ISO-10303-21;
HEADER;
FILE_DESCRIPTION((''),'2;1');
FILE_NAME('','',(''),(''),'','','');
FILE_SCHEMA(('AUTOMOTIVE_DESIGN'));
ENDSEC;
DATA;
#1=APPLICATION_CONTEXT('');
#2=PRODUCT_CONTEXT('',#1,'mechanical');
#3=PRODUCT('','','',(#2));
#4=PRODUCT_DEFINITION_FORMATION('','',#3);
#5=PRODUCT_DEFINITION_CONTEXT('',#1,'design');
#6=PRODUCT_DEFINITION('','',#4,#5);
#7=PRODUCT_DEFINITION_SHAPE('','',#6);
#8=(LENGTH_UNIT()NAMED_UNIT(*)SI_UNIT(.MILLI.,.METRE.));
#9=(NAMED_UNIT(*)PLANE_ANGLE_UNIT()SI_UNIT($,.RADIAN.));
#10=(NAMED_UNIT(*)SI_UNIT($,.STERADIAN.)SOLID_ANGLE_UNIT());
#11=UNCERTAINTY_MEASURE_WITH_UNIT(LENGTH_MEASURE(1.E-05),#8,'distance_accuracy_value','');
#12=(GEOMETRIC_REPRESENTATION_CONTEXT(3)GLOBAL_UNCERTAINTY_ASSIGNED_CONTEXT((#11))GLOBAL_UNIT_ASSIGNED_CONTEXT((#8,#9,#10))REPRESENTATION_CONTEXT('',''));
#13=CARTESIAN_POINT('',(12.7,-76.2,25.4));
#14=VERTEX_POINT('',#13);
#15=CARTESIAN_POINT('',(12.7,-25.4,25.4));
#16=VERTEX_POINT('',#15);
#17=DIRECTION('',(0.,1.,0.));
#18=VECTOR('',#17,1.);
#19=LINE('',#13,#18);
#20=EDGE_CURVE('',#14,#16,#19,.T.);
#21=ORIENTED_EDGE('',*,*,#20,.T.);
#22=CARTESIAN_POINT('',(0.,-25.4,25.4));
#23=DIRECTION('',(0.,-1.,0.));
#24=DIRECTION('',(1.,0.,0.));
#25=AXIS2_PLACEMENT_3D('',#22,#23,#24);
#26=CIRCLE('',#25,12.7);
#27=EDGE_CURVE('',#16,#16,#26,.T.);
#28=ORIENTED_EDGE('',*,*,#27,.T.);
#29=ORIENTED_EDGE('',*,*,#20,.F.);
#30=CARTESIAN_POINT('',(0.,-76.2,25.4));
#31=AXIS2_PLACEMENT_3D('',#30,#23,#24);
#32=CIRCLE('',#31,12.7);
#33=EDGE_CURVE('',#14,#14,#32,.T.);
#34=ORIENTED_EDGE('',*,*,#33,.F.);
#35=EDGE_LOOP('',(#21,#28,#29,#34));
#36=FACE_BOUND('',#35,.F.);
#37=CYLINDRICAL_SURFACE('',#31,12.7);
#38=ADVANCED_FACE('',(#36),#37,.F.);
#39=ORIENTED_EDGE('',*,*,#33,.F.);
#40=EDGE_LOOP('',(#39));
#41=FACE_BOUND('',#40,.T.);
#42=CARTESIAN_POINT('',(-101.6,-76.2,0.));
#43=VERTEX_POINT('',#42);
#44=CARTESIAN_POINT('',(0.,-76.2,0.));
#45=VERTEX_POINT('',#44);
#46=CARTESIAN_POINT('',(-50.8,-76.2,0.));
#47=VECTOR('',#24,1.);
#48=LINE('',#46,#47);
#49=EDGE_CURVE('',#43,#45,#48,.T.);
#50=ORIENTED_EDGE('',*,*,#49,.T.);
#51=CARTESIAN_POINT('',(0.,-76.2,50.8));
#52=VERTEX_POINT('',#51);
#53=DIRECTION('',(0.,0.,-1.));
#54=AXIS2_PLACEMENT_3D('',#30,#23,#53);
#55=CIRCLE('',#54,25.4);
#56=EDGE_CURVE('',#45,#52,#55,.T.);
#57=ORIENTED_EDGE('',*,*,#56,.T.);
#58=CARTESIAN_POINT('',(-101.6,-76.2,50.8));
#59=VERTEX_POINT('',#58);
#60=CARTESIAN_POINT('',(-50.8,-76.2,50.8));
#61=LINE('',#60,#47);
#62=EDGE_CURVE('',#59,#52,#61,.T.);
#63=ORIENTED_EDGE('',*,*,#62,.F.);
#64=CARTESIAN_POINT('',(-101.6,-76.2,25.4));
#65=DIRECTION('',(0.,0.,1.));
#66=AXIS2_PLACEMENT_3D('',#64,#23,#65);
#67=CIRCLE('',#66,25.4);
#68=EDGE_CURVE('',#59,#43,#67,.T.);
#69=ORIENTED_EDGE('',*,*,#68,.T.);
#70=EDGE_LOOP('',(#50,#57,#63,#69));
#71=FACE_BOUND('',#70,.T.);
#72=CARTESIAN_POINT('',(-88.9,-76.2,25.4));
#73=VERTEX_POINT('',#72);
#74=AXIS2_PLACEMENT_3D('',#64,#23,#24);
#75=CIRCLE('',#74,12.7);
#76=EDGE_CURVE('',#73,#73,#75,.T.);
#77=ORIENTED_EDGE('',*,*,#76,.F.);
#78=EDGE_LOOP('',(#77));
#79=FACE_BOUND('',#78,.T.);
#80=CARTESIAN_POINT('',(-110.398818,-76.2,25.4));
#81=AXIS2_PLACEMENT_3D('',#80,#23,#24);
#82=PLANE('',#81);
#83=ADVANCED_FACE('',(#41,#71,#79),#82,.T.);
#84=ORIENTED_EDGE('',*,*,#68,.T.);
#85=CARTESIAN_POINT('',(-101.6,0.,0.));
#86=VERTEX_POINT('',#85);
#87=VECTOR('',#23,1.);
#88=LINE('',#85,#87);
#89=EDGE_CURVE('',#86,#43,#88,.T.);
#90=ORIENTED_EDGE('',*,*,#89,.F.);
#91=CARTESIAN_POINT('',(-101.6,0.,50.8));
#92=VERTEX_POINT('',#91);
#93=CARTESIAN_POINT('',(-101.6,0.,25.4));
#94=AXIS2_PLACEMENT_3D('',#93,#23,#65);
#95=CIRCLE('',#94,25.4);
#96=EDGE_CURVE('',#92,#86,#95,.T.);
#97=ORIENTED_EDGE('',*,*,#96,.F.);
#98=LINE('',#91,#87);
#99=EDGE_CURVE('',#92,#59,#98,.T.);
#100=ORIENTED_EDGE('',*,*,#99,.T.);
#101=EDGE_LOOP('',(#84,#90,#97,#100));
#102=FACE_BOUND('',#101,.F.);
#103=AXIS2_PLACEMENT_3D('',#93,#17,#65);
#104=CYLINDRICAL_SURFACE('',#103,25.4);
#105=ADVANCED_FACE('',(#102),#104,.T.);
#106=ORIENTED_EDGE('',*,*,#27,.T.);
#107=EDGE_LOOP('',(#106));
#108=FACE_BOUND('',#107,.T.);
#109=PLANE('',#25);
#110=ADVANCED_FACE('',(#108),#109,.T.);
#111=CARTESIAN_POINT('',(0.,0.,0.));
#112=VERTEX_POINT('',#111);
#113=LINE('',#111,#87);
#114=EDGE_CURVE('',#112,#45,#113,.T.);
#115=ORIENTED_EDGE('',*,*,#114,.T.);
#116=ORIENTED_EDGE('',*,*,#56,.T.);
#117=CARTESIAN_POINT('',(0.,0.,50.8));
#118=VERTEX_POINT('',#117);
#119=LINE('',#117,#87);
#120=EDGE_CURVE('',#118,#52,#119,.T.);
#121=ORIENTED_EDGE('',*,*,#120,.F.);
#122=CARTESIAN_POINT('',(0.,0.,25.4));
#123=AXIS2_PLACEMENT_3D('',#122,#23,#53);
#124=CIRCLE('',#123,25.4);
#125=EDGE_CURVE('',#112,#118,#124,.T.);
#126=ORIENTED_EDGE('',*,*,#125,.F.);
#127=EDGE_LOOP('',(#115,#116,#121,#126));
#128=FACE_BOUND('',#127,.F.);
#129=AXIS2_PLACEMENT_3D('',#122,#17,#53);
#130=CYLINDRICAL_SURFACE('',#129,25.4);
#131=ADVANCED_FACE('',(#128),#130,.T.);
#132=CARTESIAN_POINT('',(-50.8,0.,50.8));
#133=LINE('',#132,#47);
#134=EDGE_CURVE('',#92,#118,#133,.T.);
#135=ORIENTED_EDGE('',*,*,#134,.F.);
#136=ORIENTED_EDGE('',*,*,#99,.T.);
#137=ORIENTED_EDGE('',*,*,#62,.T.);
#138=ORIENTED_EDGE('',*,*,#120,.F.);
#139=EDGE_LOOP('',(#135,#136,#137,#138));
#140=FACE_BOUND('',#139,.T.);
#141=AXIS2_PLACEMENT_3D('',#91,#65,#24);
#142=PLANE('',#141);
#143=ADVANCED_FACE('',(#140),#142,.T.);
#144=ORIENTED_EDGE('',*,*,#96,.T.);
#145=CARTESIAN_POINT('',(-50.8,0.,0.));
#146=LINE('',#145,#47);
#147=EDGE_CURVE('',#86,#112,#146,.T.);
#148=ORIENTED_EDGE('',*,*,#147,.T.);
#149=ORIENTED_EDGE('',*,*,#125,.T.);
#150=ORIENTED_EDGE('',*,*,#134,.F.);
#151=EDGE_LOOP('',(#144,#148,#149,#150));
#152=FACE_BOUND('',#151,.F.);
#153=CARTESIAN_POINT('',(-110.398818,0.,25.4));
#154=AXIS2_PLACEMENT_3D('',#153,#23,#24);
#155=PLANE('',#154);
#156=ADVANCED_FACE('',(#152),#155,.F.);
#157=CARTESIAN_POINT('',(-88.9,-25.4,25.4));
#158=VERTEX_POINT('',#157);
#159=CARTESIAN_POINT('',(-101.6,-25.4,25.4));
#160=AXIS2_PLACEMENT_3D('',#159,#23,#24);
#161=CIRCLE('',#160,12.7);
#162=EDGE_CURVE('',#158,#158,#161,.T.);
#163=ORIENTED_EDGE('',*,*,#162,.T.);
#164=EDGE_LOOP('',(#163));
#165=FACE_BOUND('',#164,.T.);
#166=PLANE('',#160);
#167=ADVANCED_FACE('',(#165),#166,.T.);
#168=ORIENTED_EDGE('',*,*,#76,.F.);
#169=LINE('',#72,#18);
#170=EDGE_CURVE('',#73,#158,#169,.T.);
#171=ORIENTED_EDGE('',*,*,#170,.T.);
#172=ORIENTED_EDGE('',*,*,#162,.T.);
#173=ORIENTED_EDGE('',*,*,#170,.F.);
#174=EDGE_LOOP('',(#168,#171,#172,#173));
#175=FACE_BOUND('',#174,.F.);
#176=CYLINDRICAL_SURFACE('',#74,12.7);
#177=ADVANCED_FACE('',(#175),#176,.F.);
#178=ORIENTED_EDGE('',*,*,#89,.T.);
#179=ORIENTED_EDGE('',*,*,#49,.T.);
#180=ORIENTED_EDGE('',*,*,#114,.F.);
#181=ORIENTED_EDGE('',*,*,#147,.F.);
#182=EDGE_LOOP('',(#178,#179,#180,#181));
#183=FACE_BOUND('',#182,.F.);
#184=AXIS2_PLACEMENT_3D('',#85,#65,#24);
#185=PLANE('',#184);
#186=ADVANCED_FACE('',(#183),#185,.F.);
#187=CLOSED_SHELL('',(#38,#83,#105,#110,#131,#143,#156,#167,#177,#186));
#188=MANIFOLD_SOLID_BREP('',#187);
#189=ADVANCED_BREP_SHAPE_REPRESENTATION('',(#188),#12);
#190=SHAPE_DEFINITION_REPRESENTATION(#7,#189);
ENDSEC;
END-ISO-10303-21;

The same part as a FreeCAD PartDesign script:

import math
import FreeCAD as App
import Part
import Sketcher
Q = App.Units.Quantity

doc = App.newDocument("Part")
body = doc.addObject("PartDesign::Body", "Body")

sketch1 = body.newObject("Sketcher::SketchObject", "Sketch")
sketch1.AttachmentSupport = (doc.getObject("XZ_Plane"), [""])
sketch1.MapMode = "FlatFace"
sketch1.addGeometry([
    Part.ArcOfCircle(Part.Circle(App.Vector(-102, 25, 0), App.Vector(0, 0, 1), 25), math.radians(90), math.radians(270)),
    Part.LineSegment(App.Vector(-102, 0, 0), App.Vector(0, 0, 0)),
    Part.ArcOfCircle(Part.Circle(App.Vector(0, 25, 0), App.Vector(0, 0, 1), 25), math.radians(-90), math.radians(90)),
    Part.LineSegment(App.Vector(0, 51, 0), App.Vector(-102, 51, 0)),
], False)
sketch1.addConstraint([
    Sketcher.Constraint("Tangent", 0, 2, 1, 1),
    Sketcher.Constraint("Tangent", 1, 2, 2, 1),
    Sketcher.Constraint("Tangent", 2, 2, 3, 1),
    Sketcher.Constraint("Tangent", 3, 2, 0, 1),
    Sketcher.Constraint("Horizontal", 1),
    Sketcher.Constraint("Horizontal", 3),
    Sketcher.Constraint("Coincident", 1, 2, -1, 1),
    Sketcher.Constraint("Radius", 0, Q("1 in")),
    Sketcher.Constraint("DistanceX", 1, 1, 1, 2, Q("4 in")),
])
pad1 = body.newObject("PartDesign::Pad", "Pad")
pad1.Profile = sketch1
pad1.Length = Q("3 in")

sketch2 = body.newObject("Sketcher::SketchObject", "Sketch001")
sketch2.AttachmentSupport = (doc.getObject("XZ_Plane"), [""])
sketch2.MapMode = "FlatFace"
sketch2.AttachmentOffset = App.Placement(App.Vector(0, 0, 3 * 25.4), App.Rotation())
sketch2.addGeometry([
    Part.Circle(App.Vector(0, 25, 0), App.Vector(0, 0, 1), 13),
    Part.Circle(App.Vector(-102, 25, 0), App.Vector(0, 0, 1), 13),
], False)
sketch2.addConstraint([
    Sketcher.Constraint("Equal", 0, 1),
    Sketcher.Constraint("PointOnObject", 0, 3, -2),
    Sketcher.Constraint("Horizontal", 0, 3, 1, 3),
    Sketcher.Constraint("Diameter", 0, Q("1 in")),
    Sketcher.Constraint("DistanceY", -1, 1, 0, 3, Q("1 in")),
    Sketcher.Constraint("DistanceX", 1, 3, -1, 1, Q("4 in")),
])
pocket1 = body.newObject("PartDesign::Pocket", "Pocket")
pocket1.Profile = sketch2
pocket1.Length = Q("2 in")

doc.recompute()
